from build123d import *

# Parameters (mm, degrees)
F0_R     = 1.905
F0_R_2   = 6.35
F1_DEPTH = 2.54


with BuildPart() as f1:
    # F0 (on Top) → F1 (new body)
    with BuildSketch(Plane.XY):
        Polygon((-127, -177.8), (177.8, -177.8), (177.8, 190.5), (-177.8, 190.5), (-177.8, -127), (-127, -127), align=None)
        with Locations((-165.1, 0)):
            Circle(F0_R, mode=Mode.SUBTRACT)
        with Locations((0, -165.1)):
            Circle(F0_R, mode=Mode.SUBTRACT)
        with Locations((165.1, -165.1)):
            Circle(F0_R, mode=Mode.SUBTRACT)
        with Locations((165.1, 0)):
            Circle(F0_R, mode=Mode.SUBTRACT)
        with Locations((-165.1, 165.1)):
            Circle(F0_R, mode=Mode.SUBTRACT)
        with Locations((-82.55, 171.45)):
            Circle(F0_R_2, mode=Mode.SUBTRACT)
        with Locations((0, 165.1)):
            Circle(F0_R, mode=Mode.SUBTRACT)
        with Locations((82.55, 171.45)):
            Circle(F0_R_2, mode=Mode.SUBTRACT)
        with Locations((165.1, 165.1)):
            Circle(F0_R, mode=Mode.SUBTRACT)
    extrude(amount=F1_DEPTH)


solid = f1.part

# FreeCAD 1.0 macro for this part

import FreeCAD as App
import Part
import Sketcher
Q = App.Units.Quantity

doc = App.newDocument("Part")
body = doc.addObject("PartDesign::Body", "Body")

# Sketch on XY plane
sketch1 = doc.addObject("Sketcher::SketchObject", "Sketch")
body.addObject(sketch1)
sketch1.AttachmentSupport = (doc.XY_Plane, [""])
sketch1.MapMode = "FlatFace"
sketch1.addGeometry(Part.LineSegment(App.Vector(-127, -177.8, 0), App.Vector(177.8, -177.8, 0)), False)
sketch1.addGeometry(Part.LineSegment(App.Vector(177.8, -177.8, 0), App.Vector(177.8, 190.5, 0)), False)
sketch1.addGeometry(Part.LineSegment(App.Vector(177.8, 190.5, 0), App.Vector(-177.8, 190.5, 0)), False)
sketch1.addGeometry(Part.LineSegment(App.Vector(-177.8, 190.5, 0), App.Vector(-177.8, -127, 0)), False)
sketch1.addGeometry(Part.LineSegment(App.Vector(-177.8, -127, 0), App.Vector(-127, -127, 0)), False)
sketch1.addGeometry(Part.LineSegment(App.Vector(-127, -127, 0), App.Vector(-127, -177.8, 0)), False)
sketch1.addGeometry(Part.Circle(App.Vector(-165.1, 0, 0), App.Vector(0, 0, 1), 1.9), False)
sketch1.addGeometry(Part.Circle(App.Vector(0, -165.1, 0), App.Vector(0, 0, 1), 1.9), False)
sketch1.addGeometry(Part.Circle(App.Vector(165.1, -165.1, 0), App.Vector(0, 0, 1), 1.9), False)
sketch1.addGeometry(Part.Circle(App.Vector(165.1, 0, 0), App.Vector(0, 0, 1), 1.9), False)
sketch1.addGeometry(Part.Circle(App.Vector(-165.1, 165.1, 0), App.Vector(0, 0, 1), 1.9), False)
sketch1.addGeometry(Part.Circle(App.Vector(-82.5, 171.4, 0), App.Vector(0, 0, 1), 6.3), False)
sketch1.addGeometry(Part.Circle(App.Vector(0, 165.1, 0), App.Vector(0, 0, 1), 1.9), False)
sketch1.addGeometry(Part.Circle(App.Vector(82.5, 171.4, 0), App.Vector(0, 0, 1), 6.3), False)
sketch1.addGeometry(Part.Circle(App.Vector(165.1, 165.1, 0), App.Vector(0, 0, 1), 1.9), False)
sketch1.addConstraint(Sketcher.Constraint("Coincident", 0, 2, 1, 1))
sketch1.addConstraint(Sketcher.Constraint("Coincident", 1, 2, 2, 1))
sketch1.addConstraint(Sketcher.Constraint("Coincident", 2, 2, 3, 1))
sketch1.addConstraint(Sketcher.Constraint("Coincident", 3, 2, 4, 1))
sketch1.addConstraint(Sketcher.Constraint("Coincident", 4, 2, 5, 1))
sketch1.addConstraint(Sketcher.Constraint("Coincident", 5, 2, 0, 1))
sketch1.addConstraint(Sketcher.Constraint("Horizontal", 0))
sketch1.addConstraint(Sketcher.Constraint("Vertical", 1))
sketch1.addConstraint(Sketcher.Constraint("Horizontal", 2))
sketch1.addConstraint(Sketcher.Constraint("Vertical", 3))
sketch1.addConstraint(Sketcher.Constraint("Horizontal", 4))
sketch1.addConstraint(Sketcher.Constraint("Vertical", 5))
sketch1.addConstraint(Sketcher.Constraint("Equal", 6, 7))
sketch1.addConstraint(Sketcher.Constraint("Equal", 7, 8))
sketch1.addConstraint(Sketcher.Constraint("Equal", 8, 9))
sketch1.addConstraint(Sketcher.Constraint("Equal", 9, 10))
sketch1.addConstraint(Sketcher.Constraint("Equal", 10, 12))
sketch1.addConstraint(Sketcher.Constraint("Equal", 11, 13))
sketch1.addConstraint(Sketcher.Constraint("Equal", 12, 14))
sketch1.addConstraint(Sketcher.Constraint("Symmetric", 6, 3, 9, 3, -1, 1))
sketch1.addConstraint(Sketcher.Constraint("Symmetric", 8, 3, 10, 3, -1, 1))
sketch1.addConstraint(Sketcher.Constraint("Symmetric", 7, 3, 12, 3, -1, 1))
sketch1.addConstraint(Sketcher.Constraint("Symmetric", 11, 3, 13, 3, -2))
sketch1.addConstraint(Sketcher.Constraint("Symmetric", 10, 3, 14, 3, -2))
sketch1.addConstraint(Sketcher.Constraint("PointOnObject", 6, 3, -1))
sketch1.addConstraint(Sketcher.Constraint("PointOnObject", 7, 3, -2))
sketch1.addConstraint(Sketcher.Constraint("Horizontal", 7, 3, 8, 3))
sketch1.addConstraint(Sketcher.Constraint("Vertical", 8, 3, 9, 3))
sketch1.addConstraint(Sketcher.Constraint("Equal", 4, 5))
sketch1.addConstraint(Sketcher.Constraint("Diameter", 11, Q("0.5 in")))
sketch1.addConstraint(Sketcher.Constraint("Diameter", 6, Q("0.15 in")))
sketch1.addConstraint(Sketcher.Constraint("DistanceX", 0, 1, 0, 2, Q("12 in")))
sketch1.addConstraint(Sketcher.Constraint("DistanceX", 2, 2, 2, 1, Q("14 in")))
sketch1.addConstraint(Sketcher.Constraint("DistanceY", 1, 1, 1, 2, Q("14.5 in")))
sketch1.addConstraint(Sketcher.Constraint("DistanceX", -1, 1, 0, 2, Q("7 in")))
sketch1.addConstraint(Sketcher.Constraint("DistanceY", 0, 2, -1, 1, Q("7 in")))
sketch1.addConstraint(Sketcher.Constraint("DistanceX", 6, 3, 8, 3, Q("13 in")))
sketch1.addConstraint(Sketcher.Constraint("DistanceY", 7, 3, 10, 3, Q("13 in")))
sketch1.addConstraint(Sketcher.Constraint("DistanceX", 11, 3, 13, 3, Q("6.5 in")))
sketch1.addConstraint(Sketcher.Constraint("DistanceY", -1, 1, 11, 3, Q("6.75 in")))
pad1 = doc.addObject("PartDesign::Pad", "Pad")
body.addObject(pad1)
pad1.Profile = sketch1
pad1.Length = Q("0.1 in")

doc.recompute()
